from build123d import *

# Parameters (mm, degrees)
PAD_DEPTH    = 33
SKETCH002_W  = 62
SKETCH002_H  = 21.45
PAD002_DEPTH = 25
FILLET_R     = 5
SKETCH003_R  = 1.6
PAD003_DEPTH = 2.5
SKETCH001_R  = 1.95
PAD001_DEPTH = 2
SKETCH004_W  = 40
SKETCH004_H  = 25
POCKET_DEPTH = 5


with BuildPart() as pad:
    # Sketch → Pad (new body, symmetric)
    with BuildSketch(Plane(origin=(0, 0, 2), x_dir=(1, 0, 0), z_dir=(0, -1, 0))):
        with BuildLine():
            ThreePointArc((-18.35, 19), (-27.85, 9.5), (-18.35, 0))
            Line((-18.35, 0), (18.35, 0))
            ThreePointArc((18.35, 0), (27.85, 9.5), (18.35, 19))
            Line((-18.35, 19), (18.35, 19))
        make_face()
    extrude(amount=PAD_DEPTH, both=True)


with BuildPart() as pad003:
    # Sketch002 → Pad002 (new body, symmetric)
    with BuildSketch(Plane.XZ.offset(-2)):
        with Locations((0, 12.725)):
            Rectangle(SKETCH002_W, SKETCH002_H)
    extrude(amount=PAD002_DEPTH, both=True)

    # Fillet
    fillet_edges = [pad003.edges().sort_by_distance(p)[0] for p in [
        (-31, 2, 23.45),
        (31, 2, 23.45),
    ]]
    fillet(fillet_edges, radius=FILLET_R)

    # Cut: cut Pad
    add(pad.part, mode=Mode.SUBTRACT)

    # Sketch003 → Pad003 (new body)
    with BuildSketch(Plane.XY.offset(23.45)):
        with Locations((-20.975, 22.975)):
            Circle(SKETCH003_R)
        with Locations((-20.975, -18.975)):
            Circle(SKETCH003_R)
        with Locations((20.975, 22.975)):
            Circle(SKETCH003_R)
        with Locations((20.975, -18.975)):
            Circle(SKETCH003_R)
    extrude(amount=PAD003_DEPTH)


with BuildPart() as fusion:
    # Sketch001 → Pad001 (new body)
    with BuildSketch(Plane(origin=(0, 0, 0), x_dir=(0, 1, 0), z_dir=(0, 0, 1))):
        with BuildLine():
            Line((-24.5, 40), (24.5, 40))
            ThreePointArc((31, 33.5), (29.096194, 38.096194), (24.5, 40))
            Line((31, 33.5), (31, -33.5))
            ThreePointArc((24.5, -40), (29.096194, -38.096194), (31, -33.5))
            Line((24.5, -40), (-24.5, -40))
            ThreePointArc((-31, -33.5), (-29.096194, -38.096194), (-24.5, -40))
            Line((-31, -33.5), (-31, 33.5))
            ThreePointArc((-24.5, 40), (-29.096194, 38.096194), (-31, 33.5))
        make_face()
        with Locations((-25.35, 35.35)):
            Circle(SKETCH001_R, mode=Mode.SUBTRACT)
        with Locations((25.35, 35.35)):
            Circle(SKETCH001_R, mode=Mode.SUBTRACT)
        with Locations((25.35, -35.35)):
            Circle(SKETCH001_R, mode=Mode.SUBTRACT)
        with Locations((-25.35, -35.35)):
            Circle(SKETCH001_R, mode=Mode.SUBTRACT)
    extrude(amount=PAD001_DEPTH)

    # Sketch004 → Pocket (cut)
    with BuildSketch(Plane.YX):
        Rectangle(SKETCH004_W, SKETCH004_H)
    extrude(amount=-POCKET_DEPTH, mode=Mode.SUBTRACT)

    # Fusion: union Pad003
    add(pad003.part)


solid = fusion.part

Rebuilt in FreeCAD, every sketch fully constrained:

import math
import FreeCAD as App
import Part
import Sketcher
Q = App.Units.Quantity


def edges_at(feature, points):
    """Names of the edges that pass closest to the given points."""
    edges = feature.Shape.Edges
    near = lambda p: min(range(len(edges)), key=lambda i: edges[i].distToShape(Part.Vertex(*p))[0])
    return sorted({f"Edge{near(p) + 1}" for p in points})


def add_polygon(sketch, points):
    """Adds a closed chain of lines whose ends are joined by coincident constraints."""
    first, n = sketch.GeometryCount, len(points)
    for a, b in zip(points, points[1:] + points[:1]):
        sketch.addGeometry(Part.LineSegment(App.Vector(*a, 0), App.Vector(*b, 0)), False)
    for i in range(n):
        sketch.addConstraint(Sketcher.Constraint("Coincident", first + i, 2, first + (i + 1) % n, 1))

doc = App.newDocument("Part")
params = doc.addObject("Spreadsheet::Sheet", "Params")
for row, (alias, value) in enumerate([
    ("sketch1_radius", "9.5 mm"),
    ("sketch1_width", "36.7 mm"),
    ("pad1_length", "66 mm"),
    ("sketch2_width", "62 mm"),
    ("sketch2_height", "21.45 mm"),
    ("pad2_length", "50 mm"),
    ("fillet_radius", "5 mm"),
    ("sketch3_diameter", "3.2 mm"),
    ("pad3_length", "2.5 mm"),
    ("sketch4_diameter", "3.9 mm"),
    ("sketch4_radius", "6.5 mm"),
    ("sketch4_width", "67 mm"),
    ("sketch4_height", "49 mm"),
    ("pad4_length", "2 mm"),
    ("sketch5_width", "25 mm"),
    ("sketch5_height", "40 mm"),
    ("pocket1_length", "5 mm"),
], start=1):
    params.set(f"A{row}", alias)
    params.set(f"B{row}", "=" + value)
    params.setAlias(f"B{row}", alias)

body = doc.addObject("PartDesign::Body", "Body")

sketch1 = body.newObject("Sketcher::SketchObject", "Sketch")
sketch1.AttachmentSupport = (doc.getObject("XZ_Plane"), [""])
sketch1.MapMode = "FlatFace"
sketch1.addGeometry(Part.ArcOfCircle(Part.Circle(App.Vector(-18.35, 11.5, 0), App.Vector(0, 0, 1), 9.5), math.radians(90), math.radians(270)), False)
sketch1.addGeometry(Part.LineSegment(App.Vector(-18.35, 2, 0), App.Vector(18.35, 2, 0)), False)
sketch1.addGeometry(Part.ArcOfCircle(Part.Circle(App.Vector(18.35, 11.5, 0), App.Vector(0, 0, 1), 9.5), math.radians(-90), math.radians(90)), False)
sketch1.addGeometry(Part.LineSegment(App.Vector(18.35, 21, 0), App.Vector(-18.35, 21, 0)), False)
sketch1.addConstraint(Sketcher.Constraint("Tangent", 0, 2, 1, 1))
sketch1.addConstraint(Sketcher.Constraint("Tangent", 1, 2, 2, 1))
sketch1.addConstraint(Sketcher.Constraint("Tangent", 2, 2, 3, 1))
sketch1.addConstraint(Sketcher.Constraint("Tangent", 3, 2, 0, 1))
sketch1.addConstraint(Sketcher.Constraint("Horizontal", 1))
sketch1.addConstraint(Sketcher.Constraint("Horizontal", 3))
sketch1.addConstraint(Sketcher.Constraint("Radius", 0, Q("9.5 mm")))
sketch1.addConstraint(Sketcher.Constraint("DistanceX", 1, 1, 1, 2, Q("36.7 mm")))
sketch1.addConstraint(Sketcher.Constraint("DistanceY", -1, 1, 0, 2, Q("2 mm")))
sketch1.addConstraint(Sketcher.Constraint("DistanceX", 0, 3, -1, 1, Q("18.35 mm")))
sketch1.setExpression("Constraints[6]", "Params.sketch1_radius")
sketch1.setExpression("Constraints[7]", "Params.sketch1_width")
pad1 = body.newObject("PartDesign::Pad", "Pad")
pad1.Profile = sketch1
pad1.setExpression("Length", "Params.pad1_length")
pad1.Midplane = True
body2 = doc.addObject("PartDesign::Body", "Body001")

sketch2 = body2.newObject("Sketcher::SketchObject", "Sketch001")
sketch2.AttachmentSupport = (doc.getObject("XZ_Plane001"), [""])
sketch2.MapMode = "FlatFace"
sketch2.AttachmentOffset = App.Placement(App.Vector(0, 0, -2), App.Rotation())
add_polygon(sketch2, [(-31, 23.45), (-31, 2), (31, 2), (31, 23.45)])
sketch2.addConstraint(Sketcher.Constraint("Vertical", 0))
sketch2.addConstraint(Sketcher.Constraint("Horizontal", 1))
sketch2.addConstraint(Sketcher.Constraint("Vertical", 2))
sketch2.addConstraint(Sketcher.Constraint("Horizontal", 3))
sketch2.addConstraint(Sketcher.Constraint("DistanceX", 1, 1, 1, 2, Q("62 mm")))
sketch2.addConstraint(Sketcher.Constraint("DistanceX", 0, 2, -1, 1, Q("31 mm")))
sketch2.addConstraint(Sketcher.Constraint("DistanceY", -1, 1, 0, 2, Q("2 mm")))
sketch2.addConstraint(Sketcher.Constraint("DistanceY", 0, 2, 0, 1, Q("21.45 mm")))
sketch2.setExpression("Constraints[8]", "Params.sketch2_width")
sketch2.setExpression("Constraints[11]", "Params.sketch2_height")
pad2 = body2.newObject("PartDesign::Pad", "Pad001")
pad2.Profile = sketch2
pad2.setExpression("Length", "Params.pad2_length")
pad2.Midplane = True
doc.recompute()

fillet = body2.newObject("PartDesign::Fillet", "Fillet")
fillet.Base = (pad2, edges_at(pad2, [(-31, 2, 23.45), (31, 2, 23.45)]))
fillet.setExpression("Radius", "Params.fillet_radius")
doc.recompute()

boolean = body2.newObject("PartDesign::Boolean", "Boolean")
boolean.Type = "Cut"
boolean.addObjects([body])

sketch3 = body2.newObject("Sketcher::SketchObject", "Sketch002")
sketch3.AttachmentSupport = (doc.getObject("XY_Plane001"), [""])
sketch3.MapMode = "FlatFace"
sketch3.AttachmentOffset = App.Placement(App.Vector(0, 0, 23.45), App.Rotation())
sketch3.addGeometry(Part.Circle(App.Vector(-20.975, 22.975, 0), App.Vector(0, 0, 1), 1.6), False)
sketch3.addGeometry(Part.Circle(App.Vector(-20.975, -18.975, 0), App.Vector(0, 0, 1), 1.6), False)
sketch3.addGeometry(Part.Circle(App.Vector(20.975, 22.975, 0), App.Vector(0, 0, 1), 1.6), False)
sketch3.addGeometry(Part.Circle(App.Vector(20.975, -18.975, 0), App.Vector(0, 0, 1), 1.6), False)
sketch3.addConstraint(Sketcher.Constraint("Equal", 0, 1))
sketch3.addConstraint(Sketcher.Constraint("Equal", 1, 2))
sketch3.addConstraint(Sketcher.Constraint("Equal", 2, 3))
sketch3.addConstraint(Sketcher.Constraint("Symmetric", 0, 3, 2, 3, -2))
sketch3.addConstraint(Sketcher.Constraint("Symmetric", 1, 3, 3, 3, -2))
sketch3.addConstraint(Sketcher.Constraint("Vertical", 0, 3, 1, 3))
sketch3.addConstraint(Sketcher.Constraint("Diameter", 0, Q("3.2 mm")))
sketch3.addConstraint(Sketcher.Constraint("DistanceY", 1, 3, 0, 3, Q("41.95 mm")))
sketch3.addConstraint(Sketcher.Constraint("DistanceX", 0, 3, 2, 3, Q("41.95 mm")))
sketch3.addConstraint(Sketcher.Constraint("DistanceY", -1, 1, 0, 3, Q("22.975 mm")))
sketch3.setExpression("Constraints[6]", "Params.sketch3_diameter")
pad3 = body2.newObject("PartDesign::Pad", "Pad002")
pad3.Profile = sketch3
pad3.setExpression("Length", "Params.pad3_length")
body3 = doc.addObject("PartDesign::Body", "Body002")

sketch4 = body3.newObject("Sketcher::SketchObject", "Sketch003")
sketch4.AttachmentSupport = (doc.getObject("XY_Plane002"), [""])
sketch4.MapMode = "FlatFace"
sketch4.addGeometry(Part.LineSegment(App.Vector(-40, 24.5, 0), App.Vector(-40, -24.5, 0)), False)
sketch4.addGeometry(Part.ArcOfCircle(Part.Circle(App.Vector(-33.5, -24.5, 0), App.Vector(0, 0, 1), 6.5), math.radians(-179.999998), math.radians(-90.000002)), False)
sketch4.addGeometry(Part.LineSegment(App.Vector(-33.5, -31, 0), App.Vector(33.5, -31, 0)), False)
sketch4.addGeometry(Part.ArcOfCircle(Part.Circle(App.Vector(33.5, -24.5, 0), App.Vector(0, 0, 1), 6.5), math.radians(-89.999998), math.radians(-0.000002)), False)
sketch4.addGeometry(Part.LineSegment(App.Vector(40, -24.5, 0), App.Vector(40, 24.5, 0)), False)
sketch4.addGeometry(Part.ArcOfCircle(Part.Circle(App.Vector(33.5, 24.5, 0), App.Vector(0, 0, 1), 6.5), math.radians(0.000002), math.radians(89.999998)), False)
sketch4.addGeometry(Part.LineSegment(App.Vector(33.5, 31, 0), App.Vector(-33.5, 31, 0)), False)
sketch4.addGeometry(Part.ArcOfCircle(Part.Circle(App.Vector(-33.5, 24.5, 0), App.Vector(0, 0, 1), 6.5), math.radians(90.000002), math.radians(179.999998)), False)
sketch4.addGeometry(Part.Circle(App.Vector(35.35, 25.35, 0), App.Vector(0, 0, 1), 1.95), False)
sketch4.addGeometry(Part.Circle(App.Vector(35.35, -25.35, 0), App.Vector(0, 0, 1), 1.95), False)
sketch4.addGeometry(Part.Circle(App.Vector(-35.35, 25.35, 0), App.Vector(0, 0, 1), 1.95), False)
sketch4.addGeometry(Part.Circle(App.Vector(-35.35, -25.35, 0), App.Vector(0, 0, 1), 1.95), False)
sketch4.addConstraint(Sketcher.Constraint("Tangent", 0, 2, 1, 1))
sketch4.addConstraint(Sketcher.Constraint("Tangent", 1, 2, 2, 1))
sketch4.addConstraint(Sketcher.Constraint("Tangent", 2, 2, 3, 1))
sketch4.addConstraint(Sketcher.Constraint("Tangent", 3, 2, 4, 1))
sketch4.addConstraint(Sketcher.Constraint("Tangent", 4, 2, 5, 1))
sketch4.addConstraint(Sketcher.Constraint("Tangent", 5, 2, 6, 1))
sketch4.addConstraint(Sketcher.Constraint("Tangent", 6, 2, 7, 1))
sketch4.addConstraint(Sketcher.Constraint("Tangent", 7, 2, 0, 1))
sketch4.addConstraint(Sketcher.Constraint("Vertical", 0))
sketch4.addConstraint(Sketcher.Constraint("Horizontal", 2))
sketch4.addConstraint(Sketcher.Constraint("Vertical", 4))
sketch4.addConstraint(Sketcher.Constraint("Horizontal", 6))
sketch4.addConstraint(Sketcher.Constraint("Equal", 1, 3))
sketch4.addConstraint(Sketcher.Constraint("Equal", 3, 5))
sketch4.addConstraint(Sketcher.Constraint("Equal", 5, 7))
sketch4.addConstraint(Sketcher.Constraint("Equal", 8, 9))
sketch4.addConstraint(Sketcher.Constraint("Equal", 9, 10))
sketch4.addConstraint(Sketcher.Constraint("Equal", 10, 11))
sketch4.addConstraint(Sketcher.Constraint("Symmetric", 1, 3, 5, 3, -1, 1))
sketch4.addConstraint(Sketcher.Constraint("Symmetric", 9, 3, 10, 3, -1, 1))
sketch4.addConstraint(Sketcher.Constraint("Symmetric", 8, 3, 11, 3, -1, 1))
sketch4.addConstraint(Sketcher.Constraint("Symmetric", 8, 3, 10, 3, -2))
sketch4.addConstraint(Sketcher.Constraint("Diameter", 8, Q("3.9 mm")))
sketch4.addConstraint(Sketcher.Constraint("Radius", 1, Q("6.5 mm")))
sketch4.addConstraint(Sketcher.Constraint("DistanceX", 2, 1, 2, 2, Q("67 mm")))
sketch4.addConstraint(Sketcher.Constraint("DistanceY", 0, 2, 0, 1, Q("49 mm")))
sketch4.addConstraint(Sketcher.Constraint("DistanceY", 9, 3, 8, 3, Q("50.7 mm")))
sketch4.addConstraint(Sketcher.Constraint("DistanceX", 10, 3, 8, 3, Q("70.7 mm")))
sketch4.setExpression("Constraints[22]", "Params.sketch4_diameter")
sketch4.setExpression("Constraints[23]", "Params.sketch4_radius")
sketch4.setExpression("Constraints[24]", "Params.sketch4_width")
sketch4.setExpression("Constraints[25]", "Params.sketch4_height")
pad4 = body3.newObject("PartDesign::Pad", "Pad003")
pad4.Profile = sketch4
pad4.setExpression("Length", "Params.pad4_length")

sketch5 = body3.newObject("Sketcher::SketchObject", "Sketch004")
sketch5.AttachmentSupport = (doc.getObject("XY_Plane002"), [""])
sketch5.MapMode = "FlatFace"
add_polygon(sketch5, [(12.5, -20), (-12.5, -20), (-12.5, 20), (12.5, 20)])
sketch5.addConstraint(Sketcher.Constraint("Horizontal", 0))
sketch5.addConstraint(Sketcher.Constraint("Vertical", 1))
sketch5.addConstraint(Sketcher.Constraint("Horizontal", 2))
sketch5.addConstraint(Sketcher.Constraint("Vertical", 3))
sketch5.addConstraint(Sketcher.Constraint("Symmetric", 0, 2, 2, 2, -1, 1))
sketch5.addConstraint(Sketcher.Constraint("DistanceX", 0, 2, 0, 1, Q("25 mm")))
sketch5.addConstraint(Sketcher.Constraint("DistanceY", 1, 1, 1, 2, Q("40 mm")))
sketch5.setExpression("Constraints[9]", "Params.sketch5_width")
sketch5.setExpression("Constraints[10]", "Params.sketch5_height")
pocket1 = body3.newObject("PartDesign::Pocket", "Pocket")
pocket1.Profile = sketch5
pocket1.setExpression("Length", "Params.pocket1_length")
pocket1.Reversed = True
doc.recompute()

boolean2 = body3.newObject("PartDesign::Boolean", "Boolean001")
boolean2.Type = "Fuse"
boolean2.addObjects([body2])

doc.recompute()
